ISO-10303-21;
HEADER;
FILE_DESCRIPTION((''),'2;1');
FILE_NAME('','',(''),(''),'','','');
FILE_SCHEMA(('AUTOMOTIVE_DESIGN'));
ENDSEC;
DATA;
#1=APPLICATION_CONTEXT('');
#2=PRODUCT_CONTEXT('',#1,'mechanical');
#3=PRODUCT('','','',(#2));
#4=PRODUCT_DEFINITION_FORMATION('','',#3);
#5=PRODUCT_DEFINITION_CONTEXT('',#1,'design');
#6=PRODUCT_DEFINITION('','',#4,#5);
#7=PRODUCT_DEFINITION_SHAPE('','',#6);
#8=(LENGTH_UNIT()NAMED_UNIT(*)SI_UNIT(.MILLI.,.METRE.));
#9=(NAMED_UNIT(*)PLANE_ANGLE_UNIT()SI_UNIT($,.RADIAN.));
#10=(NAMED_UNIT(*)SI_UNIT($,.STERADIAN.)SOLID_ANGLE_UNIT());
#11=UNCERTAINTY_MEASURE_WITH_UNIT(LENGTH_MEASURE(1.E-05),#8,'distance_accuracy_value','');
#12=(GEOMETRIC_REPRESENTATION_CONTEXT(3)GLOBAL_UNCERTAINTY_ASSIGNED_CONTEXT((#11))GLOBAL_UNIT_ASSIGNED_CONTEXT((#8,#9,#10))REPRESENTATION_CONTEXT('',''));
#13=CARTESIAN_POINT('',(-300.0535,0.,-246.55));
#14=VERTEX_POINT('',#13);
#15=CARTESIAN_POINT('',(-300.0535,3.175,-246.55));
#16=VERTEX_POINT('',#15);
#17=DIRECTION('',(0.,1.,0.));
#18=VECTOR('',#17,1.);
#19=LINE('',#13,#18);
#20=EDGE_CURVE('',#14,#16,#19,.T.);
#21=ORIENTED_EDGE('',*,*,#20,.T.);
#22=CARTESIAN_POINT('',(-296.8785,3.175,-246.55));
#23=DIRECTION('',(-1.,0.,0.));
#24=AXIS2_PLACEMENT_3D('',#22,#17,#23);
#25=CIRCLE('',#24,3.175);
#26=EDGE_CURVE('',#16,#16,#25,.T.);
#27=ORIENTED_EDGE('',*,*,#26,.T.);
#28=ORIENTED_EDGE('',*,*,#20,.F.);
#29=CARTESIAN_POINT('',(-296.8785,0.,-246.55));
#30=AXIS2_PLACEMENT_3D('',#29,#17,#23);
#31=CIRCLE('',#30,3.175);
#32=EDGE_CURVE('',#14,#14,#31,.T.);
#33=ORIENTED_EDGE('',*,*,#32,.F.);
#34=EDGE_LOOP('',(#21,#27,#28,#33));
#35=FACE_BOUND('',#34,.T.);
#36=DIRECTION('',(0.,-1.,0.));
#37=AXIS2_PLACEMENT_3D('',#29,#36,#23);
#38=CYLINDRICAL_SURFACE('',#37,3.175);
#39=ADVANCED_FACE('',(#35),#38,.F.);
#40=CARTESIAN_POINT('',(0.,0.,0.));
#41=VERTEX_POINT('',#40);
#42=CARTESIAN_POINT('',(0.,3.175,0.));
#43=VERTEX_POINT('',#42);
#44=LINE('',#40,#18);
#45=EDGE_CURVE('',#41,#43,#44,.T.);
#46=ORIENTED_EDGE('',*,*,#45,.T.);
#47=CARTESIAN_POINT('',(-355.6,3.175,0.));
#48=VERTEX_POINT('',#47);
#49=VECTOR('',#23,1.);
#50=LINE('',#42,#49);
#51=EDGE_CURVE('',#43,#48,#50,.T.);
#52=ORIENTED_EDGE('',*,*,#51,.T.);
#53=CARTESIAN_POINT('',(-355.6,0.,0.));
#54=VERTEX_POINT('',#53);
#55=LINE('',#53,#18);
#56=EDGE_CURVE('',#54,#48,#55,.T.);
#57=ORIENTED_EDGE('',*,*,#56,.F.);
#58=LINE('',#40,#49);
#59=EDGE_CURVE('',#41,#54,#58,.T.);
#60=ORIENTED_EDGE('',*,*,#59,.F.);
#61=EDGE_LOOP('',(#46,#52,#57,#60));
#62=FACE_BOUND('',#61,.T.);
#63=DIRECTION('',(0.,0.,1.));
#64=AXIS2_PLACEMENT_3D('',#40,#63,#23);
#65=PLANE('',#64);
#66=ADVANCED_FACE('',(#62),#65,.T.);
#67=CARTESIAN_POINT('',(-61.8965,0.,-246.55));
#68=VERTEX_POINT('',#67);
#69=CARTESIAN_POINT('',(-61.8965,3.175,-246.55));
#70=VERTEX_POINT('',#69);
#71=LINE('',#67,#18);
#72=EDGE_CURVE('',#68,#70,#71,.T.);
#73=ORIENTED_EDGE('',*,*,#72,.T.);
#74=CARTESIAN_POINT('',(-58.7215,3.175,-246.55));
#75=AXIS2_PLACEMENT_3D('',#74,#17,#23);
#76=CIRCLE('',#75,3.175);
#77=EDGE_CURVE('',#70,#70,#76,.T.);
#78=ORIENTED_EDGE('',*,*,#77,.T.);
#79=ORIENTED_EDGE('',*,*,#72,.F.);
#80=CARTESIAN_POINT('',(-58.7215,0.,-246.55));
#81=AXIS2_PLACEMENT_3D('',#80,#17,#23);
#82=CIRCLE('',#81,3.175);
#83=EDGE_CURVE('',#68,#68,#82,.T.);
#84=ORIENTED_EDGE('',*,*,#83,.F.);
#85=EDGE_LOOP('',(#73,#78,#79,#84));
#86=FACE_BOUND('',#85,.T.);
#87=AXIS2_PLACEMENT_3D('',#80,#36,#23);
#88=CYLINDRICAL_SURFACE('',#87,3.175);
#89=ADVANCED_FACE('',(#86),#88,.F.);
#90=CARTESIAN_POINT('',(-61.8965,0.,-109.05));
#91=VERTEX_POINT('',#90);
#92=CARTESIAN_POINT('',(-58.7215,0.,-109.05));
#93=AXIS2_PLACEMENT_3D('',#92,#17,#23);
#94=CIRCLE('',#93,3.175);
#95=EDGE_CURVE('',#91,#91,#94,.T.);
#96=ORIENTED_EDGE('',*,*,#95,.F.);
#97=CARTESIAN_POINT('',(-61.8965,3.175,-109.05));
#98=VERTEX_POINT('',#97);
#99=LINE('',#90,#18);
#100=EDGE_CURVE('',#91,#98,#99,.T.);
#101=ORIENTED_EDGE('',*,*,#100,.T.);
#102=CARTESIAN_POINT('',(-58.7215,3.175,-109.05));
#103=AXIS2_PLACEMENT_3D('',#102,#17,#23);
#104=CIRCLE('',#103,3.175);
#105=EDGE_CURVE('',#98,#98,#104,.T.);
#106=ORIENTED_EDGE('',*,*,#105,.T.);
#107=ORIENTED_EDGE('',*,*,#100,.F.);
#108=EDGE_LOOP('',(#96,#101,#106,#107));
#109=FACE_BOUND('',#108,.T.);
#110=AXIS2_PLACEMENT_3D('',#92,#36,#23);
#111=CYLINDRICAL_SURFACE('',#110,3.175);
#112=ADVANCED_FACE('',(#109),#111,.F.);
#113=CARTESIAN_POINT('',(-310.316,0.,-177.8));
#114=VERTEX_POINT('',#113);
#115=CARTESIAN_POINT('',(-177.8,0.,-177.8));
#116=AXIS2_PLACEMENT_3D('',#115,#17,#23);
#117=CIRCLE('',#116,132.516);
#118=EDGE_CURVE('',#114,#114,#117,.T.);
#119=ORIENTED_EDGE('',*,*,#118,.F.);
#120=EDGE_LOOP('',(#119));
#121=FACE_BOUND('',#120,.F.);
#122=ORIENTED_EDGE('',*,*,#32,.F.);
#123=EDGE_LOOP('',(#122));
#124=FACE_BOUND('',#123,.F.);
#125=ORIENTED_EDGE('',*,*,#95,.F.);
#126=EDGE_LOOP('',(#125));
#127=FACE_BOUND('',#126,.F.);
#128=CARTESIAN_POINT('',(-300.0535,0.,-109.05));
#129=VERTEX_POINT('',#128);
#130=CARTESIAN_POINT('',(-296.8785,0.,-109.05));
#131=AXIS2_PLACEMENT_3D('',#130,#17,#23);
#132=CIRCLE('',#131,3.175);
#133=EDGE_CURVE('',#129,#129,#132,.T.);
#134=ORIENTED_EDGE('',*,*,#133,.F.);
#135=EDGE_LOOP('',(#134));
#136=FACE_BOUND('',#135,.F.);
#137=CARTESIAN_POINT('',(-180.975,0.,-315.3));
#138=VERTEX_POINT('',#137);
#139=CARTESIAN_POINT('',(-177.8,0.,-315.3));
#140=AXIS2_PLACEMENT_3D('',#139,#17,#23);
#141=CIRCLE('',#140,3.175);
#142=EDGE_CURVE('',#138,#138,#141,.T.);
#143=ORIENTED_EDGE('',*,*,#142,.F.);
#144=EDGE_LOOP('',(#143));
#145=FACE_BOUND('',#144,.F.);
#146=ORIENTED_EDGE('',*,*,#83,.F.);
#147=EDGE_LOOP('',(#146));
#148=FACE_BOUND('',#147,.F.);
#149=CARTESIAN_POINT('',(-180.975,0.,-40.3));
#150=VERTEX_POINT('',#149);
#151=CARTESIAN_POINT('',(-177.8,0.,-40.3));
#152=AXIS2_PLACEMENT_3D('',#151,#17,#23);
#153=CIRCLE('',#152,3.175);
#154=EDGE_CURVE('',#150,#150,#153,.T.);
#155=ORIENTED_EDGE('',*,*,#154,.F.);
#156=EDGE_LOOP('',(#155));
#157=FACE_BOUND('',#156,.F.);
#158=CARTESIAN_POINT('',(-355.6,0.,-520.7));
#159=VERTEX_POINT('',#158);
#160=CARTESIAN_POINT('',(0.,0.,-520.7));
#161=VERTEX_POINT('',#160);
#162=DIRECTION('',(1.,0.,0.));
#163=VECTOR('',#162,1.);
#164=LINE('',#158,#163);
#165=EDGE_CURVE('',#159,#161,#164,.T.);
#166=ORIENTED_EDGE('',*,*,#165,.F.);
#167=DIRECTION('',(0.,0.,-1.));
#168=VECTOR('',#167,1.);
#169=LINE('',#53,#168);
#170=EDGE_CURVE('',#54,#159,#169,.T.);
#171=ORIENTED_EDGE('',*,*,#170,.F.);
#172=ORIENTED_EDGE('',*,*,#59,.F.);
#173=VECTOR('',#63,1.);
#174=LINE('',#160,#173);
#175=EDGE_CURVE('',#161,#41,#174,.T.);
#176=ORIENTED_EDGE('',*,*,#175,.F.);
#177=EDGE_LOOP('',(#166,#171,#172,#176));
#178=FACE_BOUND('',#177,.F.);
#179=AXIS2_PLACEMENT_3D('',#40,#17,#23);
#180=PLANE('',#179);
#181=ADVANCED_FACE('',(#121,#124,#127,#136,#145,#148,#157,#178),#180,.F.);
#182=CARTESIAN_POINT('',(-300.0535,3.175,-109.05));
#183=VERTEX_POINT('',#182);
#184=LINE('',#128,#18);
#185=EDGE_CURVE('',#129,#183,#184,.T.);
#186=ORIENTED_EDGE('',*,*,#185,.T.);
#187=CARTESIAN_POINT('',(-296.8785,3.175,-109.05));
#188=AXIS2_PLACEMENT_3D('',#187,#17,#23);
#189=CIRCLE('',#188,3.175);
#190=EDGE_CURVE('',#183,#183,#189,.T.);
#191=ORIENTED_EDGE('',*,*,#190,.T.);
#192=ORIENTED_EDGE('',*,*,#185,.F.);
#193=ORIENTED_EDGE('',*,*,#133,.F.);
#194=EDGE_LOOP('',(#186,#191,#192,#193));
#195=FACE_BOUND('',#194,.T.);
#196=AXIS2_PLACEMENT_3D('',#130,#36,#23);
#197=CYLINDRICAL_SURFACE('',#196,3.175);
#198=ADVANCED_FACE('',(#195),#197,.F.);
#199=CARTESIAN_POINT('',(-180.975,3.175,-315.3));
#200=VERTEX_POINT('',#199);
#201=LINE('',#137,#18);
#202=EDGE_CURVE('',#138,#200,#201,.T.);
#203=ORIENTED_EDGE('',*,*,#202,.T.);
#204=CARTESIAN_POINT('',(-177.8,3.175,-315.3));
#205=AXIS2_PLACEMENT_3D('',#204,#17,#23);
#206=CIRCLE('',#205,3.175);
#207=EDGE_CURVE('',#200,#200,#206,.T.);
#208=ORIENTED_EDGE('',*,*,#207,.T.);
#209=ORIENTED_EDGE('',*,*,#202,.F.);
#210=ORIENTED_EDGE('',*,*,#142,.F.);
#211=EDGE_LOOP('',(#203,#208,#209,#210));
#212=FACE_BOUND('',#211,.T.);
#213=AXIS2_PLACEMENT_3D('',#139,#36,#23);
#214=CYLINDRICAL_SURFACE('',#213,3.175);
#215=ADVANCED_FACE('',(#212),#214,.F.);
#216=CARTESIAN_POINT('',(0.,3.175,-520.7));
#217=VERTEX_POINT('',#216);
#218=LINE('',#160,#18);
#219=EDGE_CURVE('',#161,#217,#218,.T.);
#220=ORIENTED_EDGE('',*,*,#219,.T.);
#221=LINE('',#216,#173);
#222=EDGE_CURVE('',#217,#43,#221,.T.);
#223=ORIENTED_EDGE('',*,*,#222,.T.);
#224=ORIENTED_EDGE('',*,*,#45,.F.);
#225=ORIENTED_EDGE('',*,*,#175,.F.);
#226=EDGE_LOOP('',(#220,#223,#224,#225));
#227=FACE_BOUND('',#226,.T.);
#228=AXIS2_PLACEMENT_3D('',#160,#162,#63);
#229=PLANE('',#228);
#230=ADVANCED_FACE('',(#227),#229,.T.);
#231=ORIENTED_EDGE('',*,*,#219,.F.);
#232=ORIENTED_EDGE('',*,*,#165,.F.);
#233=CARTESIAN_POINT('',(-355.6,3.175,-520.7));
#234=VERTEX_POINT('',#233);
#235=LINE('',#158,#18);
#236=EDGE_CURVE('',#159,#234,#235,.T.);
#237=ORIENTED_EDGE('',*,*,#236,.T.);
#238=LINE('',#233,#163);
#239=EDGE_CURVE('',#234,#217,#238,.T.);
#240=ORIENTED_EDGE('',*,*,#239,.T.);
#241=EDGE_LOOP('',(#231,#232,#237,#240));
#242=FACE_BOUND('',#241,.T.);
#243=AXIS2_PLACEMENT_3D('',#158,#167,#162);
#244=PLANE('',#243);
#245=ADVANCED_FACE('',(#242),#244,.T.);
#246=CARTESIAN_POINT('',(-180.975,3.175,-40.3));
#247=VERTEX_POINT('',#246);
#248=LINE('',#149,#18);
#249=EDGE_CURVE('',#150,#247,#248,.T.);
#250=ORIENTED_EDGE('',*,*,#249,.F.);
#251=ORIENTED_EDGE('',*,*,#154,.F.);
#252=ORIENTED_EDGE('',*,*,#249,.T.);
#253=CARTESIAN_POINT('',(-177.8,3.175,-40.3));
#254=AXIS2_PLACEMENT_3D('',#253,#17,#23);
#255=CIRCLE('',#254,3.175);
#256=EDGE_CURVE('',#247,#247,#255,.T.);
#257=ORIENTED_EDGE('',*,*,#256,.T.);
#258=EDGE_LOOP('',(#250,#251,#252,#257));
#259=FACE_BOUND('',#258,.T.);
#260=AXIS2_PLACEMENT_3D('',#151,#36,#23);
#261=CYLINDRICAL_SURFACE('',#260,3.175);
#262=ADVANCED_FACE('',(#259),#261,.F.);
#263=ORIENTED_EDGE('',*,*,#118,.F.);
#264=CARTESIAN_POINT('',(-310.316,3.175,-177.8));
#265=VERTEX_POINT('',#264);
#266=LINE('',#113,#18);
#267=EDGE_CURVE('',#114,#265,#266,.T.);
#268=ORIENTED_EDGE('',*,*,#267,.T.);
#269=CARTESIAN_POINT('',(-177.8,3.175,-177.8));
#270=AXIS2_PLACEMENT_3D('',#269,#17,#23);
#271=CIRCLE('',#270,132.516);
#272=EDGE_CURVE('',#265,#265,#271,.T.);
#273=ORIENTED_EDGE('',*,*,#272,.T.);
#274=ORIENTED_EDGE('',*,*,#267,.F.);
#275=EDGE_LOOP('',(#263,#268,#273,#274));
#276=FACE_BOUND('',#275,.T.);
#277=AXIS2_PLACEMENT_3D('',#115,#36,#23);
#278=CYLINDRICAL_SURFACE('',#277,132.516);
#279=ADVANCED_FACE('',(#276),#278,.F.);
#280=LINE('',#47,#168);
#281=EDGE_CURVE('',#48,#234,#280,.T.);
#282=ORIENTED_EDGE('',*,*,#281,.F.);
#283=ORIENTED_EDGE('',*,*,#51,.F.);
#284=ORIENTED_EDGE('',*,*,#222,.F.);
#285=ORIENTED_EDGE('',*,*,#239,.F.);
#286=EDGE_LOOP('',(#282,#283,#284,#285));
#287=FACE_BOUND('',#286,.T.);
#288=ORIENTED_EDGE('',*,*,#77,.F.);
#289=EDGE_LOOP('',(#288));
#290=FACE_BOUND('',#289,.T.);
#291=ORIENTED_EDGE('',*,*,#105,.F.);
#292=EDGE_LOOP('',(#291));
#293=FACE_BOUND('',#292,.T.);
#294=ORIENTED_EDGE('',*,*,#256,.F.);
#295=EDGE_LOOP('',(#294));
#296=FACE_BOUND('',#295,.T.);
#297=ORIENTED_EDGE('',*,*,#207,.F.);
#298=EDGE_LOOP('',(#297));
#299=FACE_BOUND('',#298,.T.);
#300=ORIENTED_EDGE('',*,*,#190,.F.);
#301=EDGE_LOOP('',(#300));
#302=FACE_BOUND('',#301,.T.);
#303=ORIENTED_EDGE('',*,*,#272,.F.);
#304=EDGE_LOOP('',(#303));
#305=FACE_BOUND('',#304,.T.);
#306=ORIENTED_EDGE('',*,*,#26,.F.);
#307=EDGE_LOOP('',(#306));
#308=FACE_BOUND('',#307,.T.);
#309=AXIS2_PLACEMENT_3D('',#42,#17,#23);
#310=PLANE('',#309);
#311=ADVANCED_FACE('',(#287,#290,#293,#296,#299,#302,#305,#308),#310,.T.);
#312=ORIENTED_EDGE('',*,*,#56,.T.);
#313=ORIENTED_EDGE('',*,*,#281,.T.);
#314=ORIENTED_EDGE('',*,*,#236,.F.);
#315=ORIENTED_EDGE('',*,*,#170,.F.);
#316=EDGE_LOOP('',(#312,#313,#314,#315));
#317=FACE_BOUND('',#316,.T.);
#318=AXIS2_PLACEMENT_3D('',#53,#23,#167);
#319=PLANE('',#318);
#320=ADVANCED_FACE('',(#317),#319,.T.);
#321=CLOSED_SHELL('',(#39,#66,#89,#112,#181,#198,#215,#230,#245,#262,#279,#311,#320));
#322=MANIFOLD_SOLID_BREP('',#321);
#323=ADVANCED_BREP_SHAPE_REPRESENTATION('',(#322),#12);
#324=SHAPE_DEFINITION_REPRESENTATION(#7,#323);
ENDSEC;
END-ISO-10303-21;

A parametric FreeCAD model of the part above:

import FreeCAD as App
import Part
import Sketcher
from FreeCAD import Vector
Q = App.Units.Quantity

doc = App.newDocument("Part")
body = doc.addObject("PartDesign::Body", "Body")

# Sketch on XZ plane
sketch1 = body.newObject("Sketcher::SketchObject", "Sketch")
sketch1.AttachmentSupport = (doc.getObject("XZ_Plane"), [""])
sketch1.MapMode = "FlatFace"
sketch1.addGeometry([
    Part.LineSegment(Vector(-355.6, 0, 0), Vector(0, 0, 0)),  # 0
    Part.LineSegment(Vector(0, 0, 0), Vector(0, -520.7, 0)),  # 1
    Part.LineSegment(Vector(0, -520.7, 0), Vector(-355.6, -520.7, 0)),  # 2
    Part.LineSegment(Vector(-355.6, -520.7, 0), Vector(-355.6, 0, 0)),  # 3
    Part.Circle(Vector(-177.8, -315.3, 0), Vector(0, 0, 1), 3.2),  # 4
    Part.Circle(Vector(-58.7, -246.6, 0), Vector(0, 0, 1), 3.2),  # 5
    Part.Circle(Vector(-58.7, -109, 0), Vector(0, 0, 1), 3.2),  # 6
    Part.Circle(Vector(-177.8, -177.8, 0), Vector(0, 0, 1), 132.5),  # 7
    Part.Circle(Vector(-296.9, -246.6, 0), Vector(0, 0, 1), 3.2),  # 8
    Part.Circle(Vector(-177.8, -40.3, 0), Vector(0, 0, 1), 3.2),  # 9
    Part.Circle(Vector(-296.9, -109, 0), Vector(0, 0, 1), 3.2),  # 10
], False)
sketch1.addConstraint([
    Sketcher.Constraint("Coincident", 0, 2, 1, 1),
    Sketcher.Constraint("Coincident", 1, 2, 2, 1),
    Sketcher.Constraint("Coincident", 2, 2, 3, 1),
    Sketcher.Constraint("Coincident", 3, 2, 0, 1),
    Sketcher.Constraint("Horizontal", 0),
    Sketcher.Constraint("Vertical", 1),
    Sketcher.Constraint("Horizontal", 2),
    Sketcher.Constraint("Vertical", 3),
    Sketcher.Constraint("Coincident", 0, 2, -1, 1),
    Sketcher.Constraint("Equal", 4, 5),
    Sketcher.Constraint("Equal", 5, 6),
    Sketcher.Constraint("Equal", 6, 8),
    Sketcher.Constraint("Equal", 8, 9),
    Sketcher.Constraint("Equal", 9, 10),
    Sketcher.Constraint("Horizontal", 5, 3, 8, 3),
    Sketcher.Constraint("Horizontal", 6, 3, 10, 3),
    Sketcher.Constraint("Vertical", 5, 3, 6, 3),
    Sketcher.Constraint("Vertical", 4, 3, 7, 3),
    Sketcher.Constraint("Vertical", 7, 3, 9, 3),
    Sketcher.Constraint("Vertical", 8, 3, 10, 3),
    Sketcher.Constraint("Diameter", 4, Q("0.25 in")),
    Sketcher.Constraint("DistanceX", 0, 1, 0, 2, Q("14 in")),
    Sketcher.Constraint("DistanceY", 1, 2, 1, 1, Q("20.5 in")),
    Sketcher.Constraint("DistanceX", 4, 3, -1, 1, Q("7 in")),
    Sketcher.Constraint("DistanceY", 7, 3, -1, 1, Q("7 in")),
    Sketcher.Constraint("Diameter", 7, Q("265.032 mm")),
    Sketcher.Constraint("DistanceY", 5, 3, 6, 3, Q("137.5 mm")),
    Sketcher.Constraint("DistanceY", 4, 3, 7, 3, Q("137.5 mm")),
    Sketcher.Constraint("DistanceY", 7, 3, 9, 3, Q("137.5 mm")),
    Sketcher.Constraint("DistanceY", 5, 3, -1, 1, Q("9.7067 in")),
    Sketcher.Constraint("DistanceX", 5, 3, -1, 1, Q("58.7215 mm")),
    Sketcher.Constraint("DistanceX", 8, 3, -1, 1, Q("296.8785 mm")),
])
pad1 = body.newObject("PartDesign::Pad", "Pad")
pad1.Profile = sketch1
pad1.Length = Q("0.125 in")
pad1.Reversed = True

doc.recompute()
